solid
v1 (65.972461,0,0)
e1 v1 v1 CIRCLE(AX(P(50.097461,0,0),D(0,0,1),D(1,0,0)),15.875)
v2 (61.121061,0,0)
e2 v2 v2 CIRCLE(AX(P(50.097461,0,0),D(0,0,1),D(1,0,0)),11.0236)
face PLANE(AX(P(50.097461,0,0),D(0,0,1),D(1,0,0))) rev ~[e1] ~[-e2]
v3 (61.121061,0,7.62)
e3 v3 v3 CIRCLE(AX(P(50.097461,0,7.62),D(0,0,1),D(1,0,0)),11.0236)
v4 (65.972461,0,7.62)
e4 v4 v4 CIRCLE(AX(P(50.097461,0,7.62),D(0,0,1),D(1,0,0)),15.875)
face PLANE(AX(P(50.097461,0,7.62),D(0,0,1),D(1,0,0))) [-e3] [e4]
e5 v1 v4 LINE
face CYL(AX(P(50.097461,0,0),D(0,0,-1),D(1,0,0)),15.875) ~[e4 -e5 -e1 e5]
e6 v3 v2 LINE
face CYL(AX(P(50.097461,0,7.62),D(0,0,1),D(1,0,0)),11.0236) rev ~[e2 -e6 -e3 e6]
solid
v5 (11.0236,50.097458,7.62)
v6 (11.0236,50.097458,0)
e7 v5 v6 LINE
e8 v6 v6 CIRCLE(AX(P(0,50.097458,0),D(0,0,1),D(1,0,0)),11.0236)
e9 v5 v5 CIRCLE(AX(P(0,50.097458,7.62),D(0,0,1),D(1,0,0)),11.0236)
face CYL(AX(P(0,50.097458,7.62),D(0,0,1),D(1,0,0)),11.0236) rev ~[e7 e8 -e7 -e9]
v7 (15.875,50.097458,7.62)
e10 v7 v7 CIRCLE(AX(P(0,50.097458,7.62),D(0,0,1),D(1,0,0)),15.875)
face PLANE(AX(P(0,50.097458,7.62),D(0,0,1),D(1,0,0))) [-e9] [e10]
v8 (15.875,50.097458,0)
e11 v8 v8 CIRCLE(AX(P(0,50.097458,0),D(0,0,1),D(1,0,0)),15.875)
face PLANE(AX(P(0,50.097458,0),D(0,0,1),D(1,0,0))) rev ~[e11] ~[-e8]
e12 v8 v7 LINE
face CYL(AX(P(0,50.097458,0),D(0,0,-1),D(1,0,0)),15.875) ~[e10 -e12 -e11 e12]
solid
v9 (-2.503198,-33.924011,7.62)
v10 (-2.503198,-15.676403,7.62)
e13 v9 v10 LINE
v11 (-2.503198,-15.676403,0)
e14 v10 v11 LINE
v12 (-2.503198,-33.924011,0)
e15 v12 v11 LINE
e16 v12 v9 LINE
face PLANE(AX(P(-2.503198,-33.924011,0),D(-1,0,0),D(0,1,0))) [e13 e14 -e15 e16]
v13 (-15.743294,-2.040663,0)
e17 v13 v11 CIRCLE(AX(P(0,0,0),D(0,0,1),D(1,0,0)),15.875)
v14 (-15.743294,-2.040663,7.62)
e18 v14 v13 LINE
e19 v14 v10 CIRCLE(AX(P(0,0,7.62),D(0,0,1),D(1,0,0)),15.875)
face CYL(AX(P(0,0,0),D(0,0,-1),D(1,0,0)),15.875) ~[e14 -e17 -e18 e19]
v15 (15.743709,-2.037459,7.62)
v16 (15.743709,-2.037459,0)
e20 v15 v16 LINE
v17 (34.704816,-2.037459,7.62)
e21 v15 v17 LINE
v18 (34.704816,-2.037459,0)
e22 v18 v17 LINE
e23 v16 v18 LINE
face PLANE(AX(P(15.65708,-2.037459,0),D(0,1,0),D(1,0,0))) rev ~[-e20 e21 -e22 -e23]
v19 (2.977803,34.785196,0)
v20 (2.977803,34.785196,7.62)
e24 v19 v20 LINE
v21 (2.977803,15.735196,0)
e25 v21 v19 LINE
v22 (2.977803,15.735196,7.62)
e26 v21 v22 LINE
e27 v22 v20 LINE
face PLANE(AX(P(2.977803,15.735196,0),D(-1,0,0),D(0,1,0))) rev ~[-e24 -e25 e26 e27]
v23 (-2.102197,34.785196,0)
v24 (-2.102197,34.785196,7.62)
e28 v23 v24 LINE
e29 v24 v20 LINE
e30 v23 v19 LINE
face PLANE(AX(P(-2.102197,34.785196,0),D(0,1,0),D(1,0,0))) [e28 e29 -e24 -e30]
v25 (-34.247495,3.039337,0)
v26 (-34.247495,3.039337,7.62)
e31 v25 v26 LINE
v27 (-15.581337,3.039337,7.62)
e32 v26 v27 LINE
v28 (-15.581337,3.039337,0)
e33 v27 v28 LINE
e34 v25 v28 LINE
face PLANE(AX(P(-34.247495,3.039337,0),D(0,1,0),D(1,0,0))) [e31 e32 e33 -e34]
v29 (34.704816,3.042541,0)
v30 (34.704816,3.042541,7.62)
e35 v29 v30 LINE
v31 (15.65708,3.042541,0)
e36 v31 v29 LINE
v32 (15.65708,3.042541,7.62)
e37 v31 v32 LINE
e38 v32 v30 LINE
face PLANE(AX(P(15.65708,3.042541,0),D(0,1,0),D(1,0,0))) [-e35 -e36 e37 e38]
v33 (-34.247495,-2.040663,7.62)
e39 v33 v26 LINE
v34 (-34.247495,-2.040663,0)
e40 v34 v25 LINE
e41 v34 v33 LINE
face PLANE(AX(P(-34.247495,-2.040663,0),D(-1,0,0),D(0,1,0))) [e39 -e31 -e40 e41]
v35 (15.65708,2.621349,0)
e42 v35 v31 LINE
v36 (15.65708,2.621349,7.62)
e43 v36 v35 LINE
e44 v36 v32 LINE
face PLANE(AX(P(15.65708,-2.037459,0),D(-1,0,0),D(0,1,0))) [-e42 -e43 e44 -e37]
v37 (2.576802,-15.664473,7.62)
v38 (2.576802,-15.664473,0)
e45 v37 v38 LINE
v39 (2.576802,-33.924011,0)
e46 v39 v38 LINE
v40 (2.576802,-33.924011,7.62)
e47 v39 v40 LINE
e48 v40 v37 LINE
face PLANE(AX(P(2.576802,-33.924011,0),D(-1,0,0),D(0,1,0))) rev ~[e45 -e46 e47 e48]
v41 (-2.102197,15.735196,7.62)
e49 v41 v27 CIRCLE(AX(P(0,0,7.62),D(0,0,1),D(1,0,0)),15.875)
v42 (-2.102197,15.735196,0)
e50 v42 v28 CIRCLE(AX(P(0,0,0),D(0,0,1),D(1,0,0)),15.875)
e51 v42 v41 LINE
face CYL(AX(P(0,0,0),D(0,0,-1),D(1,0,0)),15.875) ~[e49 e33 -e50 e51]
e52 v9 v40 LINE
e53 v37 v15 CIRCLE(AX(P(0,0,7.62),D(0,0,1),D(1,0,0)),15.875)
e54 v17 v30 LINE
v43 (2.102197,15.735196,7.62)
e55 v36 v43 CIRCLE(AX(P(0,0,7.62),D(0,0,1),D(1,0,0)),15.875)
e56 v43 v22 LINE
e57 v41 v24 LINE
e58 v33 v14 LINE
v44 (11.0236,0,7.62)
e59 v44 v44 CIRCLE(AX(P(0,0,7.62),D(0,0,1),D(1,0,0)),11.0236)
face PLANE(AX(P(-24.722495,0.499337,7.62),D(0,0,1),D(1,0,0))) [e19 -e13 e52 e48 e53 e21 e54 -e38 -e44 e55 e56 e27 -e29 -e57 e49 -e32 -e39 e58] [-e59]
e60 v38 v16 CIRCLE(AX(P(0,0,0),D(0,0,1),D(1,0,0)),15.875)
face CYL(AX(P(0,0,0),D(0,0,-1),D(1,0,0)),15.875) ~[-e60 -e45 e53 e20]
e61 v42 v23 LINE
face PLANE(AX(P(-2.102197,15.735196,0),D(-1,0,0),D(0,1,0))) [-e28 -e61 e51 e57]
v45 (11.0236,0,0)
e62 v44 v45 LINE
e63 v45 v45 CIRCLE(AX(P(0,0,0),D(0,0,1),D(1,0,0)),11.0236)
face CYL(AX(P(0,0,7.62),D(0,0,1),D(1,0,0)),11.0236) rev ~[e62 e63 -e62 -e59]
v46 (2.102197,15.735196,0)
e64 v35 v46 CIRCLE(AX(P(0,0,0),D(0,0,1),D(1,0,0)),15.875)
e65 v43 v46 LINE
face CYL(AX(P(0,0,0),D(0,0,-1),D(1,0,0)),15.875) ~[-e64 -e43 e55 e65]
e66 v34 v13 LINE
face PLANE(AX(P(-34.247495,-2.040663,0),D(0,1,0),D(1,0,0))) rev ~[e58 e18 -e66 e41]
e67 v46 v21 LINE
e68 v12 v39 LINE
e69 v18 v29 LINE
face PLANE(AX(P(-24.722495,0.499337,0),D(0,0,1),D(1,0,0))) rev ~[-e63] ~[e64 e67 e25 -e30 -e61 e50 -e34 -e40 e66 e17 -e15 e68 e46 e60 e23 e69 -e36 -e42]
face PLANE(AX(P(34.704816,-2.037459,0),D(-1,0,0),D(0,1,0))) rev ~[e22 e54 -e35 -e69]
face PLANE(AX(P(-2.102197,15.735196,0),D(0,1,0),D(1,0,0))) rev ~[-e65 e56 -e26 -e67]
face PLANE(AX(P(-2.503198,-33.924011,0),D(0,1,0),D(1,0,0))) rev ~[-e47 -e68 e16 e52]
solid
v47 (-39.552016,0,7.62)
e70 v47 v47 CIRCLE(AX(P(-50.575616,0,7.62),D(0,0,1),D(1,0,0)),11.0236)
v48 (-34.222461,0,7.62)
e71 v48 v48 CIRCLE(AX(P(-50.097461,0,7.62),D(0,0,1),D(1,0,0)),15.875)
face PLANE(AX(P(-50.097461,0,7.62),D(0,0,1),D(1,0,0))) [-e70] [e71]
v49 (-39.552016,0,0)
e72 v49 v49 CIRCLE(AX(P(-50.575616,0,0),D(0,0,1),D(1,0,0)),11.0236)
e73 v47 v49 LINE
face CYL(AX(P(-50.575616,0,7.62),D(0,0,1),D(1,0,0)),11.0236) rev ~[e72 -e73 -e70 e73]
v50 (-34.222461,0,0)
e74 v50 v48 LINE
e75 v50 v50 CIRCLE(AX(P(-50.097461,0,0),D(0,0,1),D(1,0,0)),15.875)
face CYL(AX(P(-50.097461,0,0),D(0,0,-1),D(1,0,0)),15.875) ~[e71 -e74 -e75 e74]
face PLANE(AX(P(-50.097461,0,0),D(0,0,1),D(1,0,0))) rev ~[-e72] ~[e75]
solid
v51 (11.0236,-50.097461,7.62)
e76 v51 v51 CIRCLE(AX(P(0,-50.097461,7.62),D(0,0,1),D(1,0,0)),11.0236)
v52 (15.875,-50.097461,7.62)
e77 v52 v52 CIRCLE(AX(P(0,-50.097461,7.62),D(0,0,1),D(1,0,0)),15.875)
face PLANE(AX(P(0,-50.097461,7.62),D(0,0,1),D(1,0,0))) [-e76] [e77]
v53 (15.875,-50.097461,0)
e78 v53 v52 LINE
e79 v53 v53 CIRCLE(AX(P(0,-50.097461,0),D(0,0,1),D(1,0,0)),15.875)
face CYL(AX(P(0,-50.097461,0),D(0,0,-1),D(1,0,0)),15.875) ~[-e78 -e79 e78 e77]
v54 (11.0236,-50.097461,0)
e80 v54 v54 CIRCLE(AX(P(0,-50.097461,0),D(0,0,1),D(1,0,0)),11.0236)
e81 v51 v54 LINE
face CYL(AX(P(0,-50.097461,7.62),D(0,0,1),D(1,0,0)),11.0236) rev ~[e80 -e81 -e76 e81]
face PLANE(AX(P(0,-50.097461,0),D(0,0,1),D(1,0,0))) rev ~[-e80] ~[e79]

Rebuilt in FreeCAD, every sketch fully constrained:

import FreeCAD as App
import Part
import Sketcher

V = App.Vector
Q = App.Units.Quantity

doc = App.newDocument("Part")
body = doc.addObject("PartDesign::Body", "Body")

# Sketch on XY plane
sketch1 = body.newObject("Sketcher::SketchObject", "Sketch")
sketch1.AttachmentSupport = (doc.getObject("XY_Plane"), [""])
sketch1.MapMode = "FlatFace"
sketch1.addGeometry(Part.Circle(V(0, 0, 0), V(0, 0, 1), 16), False)
sketch1.addConstraint([
    Sketcher.Constraint("Coincident", 0, 3, -1, 1),
    Sketcher.Constraint("Diameter", 0, Q("1.25 in")),
])
pad1 = body.newObject("PartDesign::Pad", "Pad")
pad1.Profile = sketch1
pad1.Length = Q("0.3 in")

# Sketch on XY plane
sketch2 = body.newObject("Sketcher::SketchObject", "Sketch001")
sketch2.AttachmentSupport = (doc.getObject("XY_Plane"), [""])
sketch2.MapMode = "FlatFace"
sketch2.AttachmentOffset = App.Placement(V(0, 0, 0.3 * 25.4), App.Rotation())
sketch2.addGeometry(Part.Circle(V(0, 0, 0), V(0, 0, 1), 11), False)
sketch2.addConstraint([
    Sketcher.Constraint("Coincident", 0, 3, -1, 1),
    Sketcher.Constraint("Diameter", 0, Q("0.868 in")),
])
pocket1 = body.newObject("PartDesign::Pocket", "Pocket")
pocket1.Profile = sketch2
pocket1.Length = Q("1 in")

# Sketch on XY plane
sketch3 = body.newObject("Sketcher::SketchObject", "Sketch002")
sketch3.AttachmentSupport = (doc.getObject("XY_Plane"), [""])
sketch3.MapMode = "FlatFace"
sketch3.addGeometry([
    Part.LineSegment(V(16, 3, 0), V(16, -2, 0)),
    Part.LineSegment(V(16, -2, 0), V(35, -2, 0)),
    Part.LineSegment(V(35, -2, 0), V(35, 3, 0)),
    Part.LineSegment(V(35, 3, 0), V(16, 3, 0)),
], False)
sketch3.addConstraint([
    Sketcher.Constraint("Coincident", 0, 2, 1, 1),
    Sketcher.Constraint("Coincident", 1, 2, 2, 1),
    Sketcher.Constraint("Coincident", 2, 2, 3, 1),
    Sketcher.Constraint("Coincident", 3, 2, 0, 1),
    Sketcher.Constraint("Vertical", 0),
    Sketcher.Constraint("Horizontal", 1),
    Sketcher.Constraint("Vertical", 2),
    Sketcher.Constraint("Horizontal", 3),
    Sketcher.Constraint("DistanceY", 0, 2, 0, 1, Q("0.2 in")),
    Sketcher.Constraint("DistanceX", 1, 1, 1, 2, Q("19.047736 mm")),
    Sketcher.Constraint("DistanceX", -1, 1, 0, 2, Q("15.65708 mm")),
    Sketcher.Constraint("DistanceY", 0, 2, -1, 1, Q("2.037459 mm")),
])
pad2 = body.newObject("PartDesign::Pad", "Pad001")
pad2.Profile = sketch3
pad2.Length = Q("0.3 in")

# Sketch on XY plane
sketch4 = body.newObject("Sketcher::SketchObject", "Sketch003")
sketch4.AttachmentSupport = (doc.getObject("XY_Plane"), [""])
sketch4.MapMode = "FlatFace"
sketch4.addGeometry([
    Part.LineSegment(V(-3, -15, 0), V(-3, -34, 0)),
    Part.LineSegment(V(-3, -34, 0), V(3, -34, 0)),
    Part.LineSegment(V(3, -34, 0), V(3, -15, 0)),
    Part.LineSegment(V(3, -15, 0), V(-3, -15, 0)),
], False)
sketch4.addConstraint([
    Sketcher.Constraint("Coincident", 0, 2, 1, 1),
    Sketcher.Constraint("Coincident", 1, 2, 2, 1),
    Sketcher.Constraint("Coincident", 2, 2, 3, 1),
    Sketcher.Constraint("Coincident", 3, 2, 0, 1),
    Sketcher.Constraint("Vertical", 0),
    Sketcher.Constraint("Horizontal", 1),
    Sketcher.Constraint("Vertical", 2),
    Sketcher.Constraint("Horizontal", 3),
    Sketcher.Constraint("DistanceX", 1, 1, 1, 2, Q("0.2 in")),
    Sketcher.Constraint("DistanceY", 0, 2, 0, 1, Q("0.75 in")),
    Sketcher.Constraint("DistanceX", -1, 1, 1, 2, Q("2.576802 mm")),
    Sketcher.Constraint("DistanceY", 0, 2, -1, 1, Q("33.924011 mm")),
])
pad3 = body.newObject("PartDesign::Pad", "Pad002")
pad3.Profile = sketch4
pad3.Length = Q("0.3 in")

# Sketch on XY plane
sketch5 = body.newObject("Sketcher::SketchObject", "Sketch004")
sketch5.AttachmentSupport = (doc.getObject("XY_Plane"), [""])
sketch5.MapMode = "FlatFace"
sketch5.addGeometry([
    Part.LineSegment(V(-2, 35, 0), V(-2, 16, 0)),
    Part.LineSegment(V(-2, 16, 0), V(3, 16, 0)),
    Part.LineSegment(V(3, 16, 0), V(3, 35, 0)),
    Part.LineSegment(V(3, 35, 0), V(-2, 35, 0)),
], False)
sketch5.addConstraint([
    Sketcher.Constraint("Coincident", 0, 2, 1, 1),
    Sketcher.Constraint("Coincident", 1, 2, 2, 1),
    Sketcher.Constraint("Coincident", 2, 2, 3, 1),
    Sketcher.Constraint("Coincident", 3, 2, 0, 1),
    Sketcher.Constraint("Vertical", 0),
    Sketcher.Constraint("Horizontal", 1),
    Sketcher.Constraint("Vertical", 2),
    Sketcher.Constraint("Horizontal", 3),
    Sketcher.Constraint("DistanceX", 1, 1, 1, 2, Q("0.2 in")),
    Sketcher.Constraint("DistanceY", 0, 2, 0, 1, Q("0.75 in")),
    Sketcher.Constraint("DistanceX", 0, 2, -1, 1, Q("2.102197 mm")),
    Sketcher.Constraint("DistanceY", -1, 1, 0, 2, Q("15.735196 mm")),
])
pad4 = body.newObject("PartDesign::Pad", "Pad003")
pad4.Profile = sketch5
pad4.Length = Q("0.3 in")

# Sketch on XY plane
sketch6 = body.newObject("Sketcher::SketchObject", "Sketch005")
sketch6.AttachmentSupport = (doc.getObject("XY_Plane"), [""])
sketch6.MapMode = "FlatFace"
sketch6.addGeometry([
    Part.LineSegment(V(-34, 3, 0), V(-34, -2, 0)),
    Part.LineSegment(V(-34, -2, 0), V(-15, -2, 0)),
    Part.LineSegment(V(-15, -2, 0), V(-15, 3, 0)),
    Part.LineSegment(V(-15, 3, 0), V(-34, 3, 0)),
], False)
sketch6.addConstraint([
    Sketcher.Constraint("Coincident", 0, 2, 1, 1),
    Sketcher.Constraint("Coincident", 1, 2, 2, 1),
    Sketcher.Constraint("Coincident", 2, 2, 3, 1),
    Sketcher.Constraint("Coincident", 3, 2, 0, 1),
    Sketcher.Constraint("Vertical", 0),
    Sketcher.Constraint("Horizontal", 1),
    Sketcher.Constraint("Vertical", 2),
    Sketcher.Constraint("Horizontal", 3),
    Sketcher.Constraint("DistanceY", 0, 2, 0, 1, Q("0.2 in")),
    Sketcher.Constraint("DistanceX", 1, 1, 1, 2, Q("0.75 in")),
    Sketcher.Constraint("DistanceX", 0, 2, -1, 1, Q("34.247495 mm")),
    Sketcher.Constraint("DistanceY", 0, 2, -1, 1, Q("2.040663 mm")),
])
pad5 = body.newObject("PartDesign::Pad", "Pad004")
pad5.Profile = sketch6
pad5.Length = Q("0.3 in")
body2 = doc.addObject("PartDesign::Body", "Body001")
body2.AllowCompound = True

# Sketch on XY plane
sketch7 = body2.newObject("Sketcher::SketchObject", "Sketch006")
sketch7.AttachmentSupport = (doc.getObject("XY_Plane001"), [""])
sketch7.MapMode = "FlatFace"
sketch7.addGeometry([
    Part.Circle(V(0, 50, 0), V(0, 0, 1), 16),
    Part.Circle(V(-50, 0, 0), V(0, 0, 1), 16),
    Part.Circle(V(50, 0, 0), V(0, 0, 1), 16),
    Part.Circle(V(0, -50, 0), V(0, 0, 1), 16),
], False)
sketch7.addConstraint([
    Sketcher.Constraint("Equal", 0, 1),
    Sketcher.Constraint("Equal", 1, 2),
    Sketcher.Constraint("Equal", 2, 3),
    Sketcher.Constraint("Symmetric", 1, 3, 2, 3, -1, 1),
    Sketcher.Constraint("Symmetric", 0, 3, 3, 3, -1, 1),
    Sketcher.Constraint("PointOnObject", 0, 3, -2),
    Sketcher.Constraint("PointOnObject", 1, 3, -1),
    Sketcher.Constraint("Diameter", 0, Q("1.25 in")),
    Sketcher.Constraint("DistanceY", -1, 1, 0, 3, Q("50.097458 mm")),
    Sketcher.Constraint("DistanceX", 1, 3, -1, 1, Q("50.097461 mm")),
])
pad6 = body2.newObject("PartDesign::Pad", "Pad005")
pad6.Profile = sketch7
pad6.Length = Q("0.3 in")

# Sketch on XY plane
sketch8 = body2.newObject("Sketcher::SketchObject", "Sketch007")
sketch8.AttachmentSupport = (doc.getObject("XY_Plane001"), [""])
sketch8.MapMode = "FlatFace"
sketch8.AttachmentOffset = App.Placement(V(0, 0, 0.3 * 25.4), App.Rotation())
sketch8.addGeometry(Part.Circle(V(-51, 0, 0), V(0, 0, 1), 11), False)
sketch8.addConstraint([
    Sketcher.Constraint("PointOnObject", 0, 3, -1),
    Sketcher.Constraint("Diameter", 0, Q("0.868 in")),
    Sketcher.Constraint("DistanceX", 0, 3, -1, 1, Q("50.575616 mm")),
])
pocket2 = body2.newObject("PartDesign::Pocket", "Pocket001")
pocket2.Profile = sketch8
pocket2.Length = Q("1 in")

# Sketch on XY plane
sketch9 = body2.newObject("Sketcher::SketchObject", "Sketch008")
sketch9.AttachmentSupport = (doc.getObject("XY_Plane001"), [""])
sketch9.MapMode = "FlatFace"
sketch9.AttachmentOffset = App.Placement(V(0, 0, 0.3 * 25.4), App.Rotation())
sketch9.addGeometry(Part.Circle(V(0, 50, 0), V(0, 0, 1), 11), False)
sketch9.addConstraint([
    Sketcher.Constraint("PointOnObject", 0, 3, -2),
    Sketcher.Constraint("Diameter", 0, Q("0.868 in")),
    Sketcher.Constraint("DistanceY", -1, 1, 0, 3, Q("50.097458 mm")),
])
pocket3 = body2.newObject("PartDesign::Pocket", "Pocket002")
pocket3.Profile = sketch9
pocket3.Length = Q("1 in")

# Sketch on XY plane
sketch10 = body2.newObject("Sketcher::SketchObject", "Sketch009")
sketch10.AttachmentSupport = (doc.getObject("XY_Plane001"), [""])
sketch10.MapMode = "FlatFace"
sketch10.AttachmentOffset = App.Placement(V(0, 0, 0.3 * 25.4), App.Rotation())
sketch10.addGeometry(Part.Circle(V(50, 0, 0), V(0, 0, 1), 11), False)
sketch10.addConstraint([
    Sketcher.Constraint("PointOnObject", 0, 3, -1),
    Sketcher.Constraint("Diameter", 0, Q("0.868 in")),
    Sketcher.Constraint("DistanceX", -1, 1, 0, 3, Q("50.097461 mm")),
])
pocket4 = body2.newObject("PartDesign::Pocket", "Pocket003")
pocket4.Profile = sketch10
pocket4.Length = Q("1 in")

# Sketch on XY plane
sketch11 = body2.newObject("Sketcher::SketchObject", "Sketch010")
sketch11.AttachmentSupport = (doc.getObject("XY_Plane001"), [""])
sketch11.MapMode = "FlatFace"
sketch11.AttachmentOffset = App.Placement(V(0, 0, 0.3 * 25.4), App.Rotation())
sketch11.addGeometry(Part.Circle(V(0, -50, 0), V(0, 0, 1), 11), False)
sketch11.addConstraint([
    Sketcher.Constraint("PointOnObject", 0, 3, -2),
    Sketcher.Constraint("Diameter", 0, Q("0.868 in")),
    Sketcher.Constraint("DistanceY", 0, 3, -1, 1, Q("50.097461 mm")),
])
pocket5 = body2.newObject("PartDesign::Pocket", "Pocket004")
pocket5.Profile = sketch11
pocket5.Length = Q("1 in")

doc.recompute()
